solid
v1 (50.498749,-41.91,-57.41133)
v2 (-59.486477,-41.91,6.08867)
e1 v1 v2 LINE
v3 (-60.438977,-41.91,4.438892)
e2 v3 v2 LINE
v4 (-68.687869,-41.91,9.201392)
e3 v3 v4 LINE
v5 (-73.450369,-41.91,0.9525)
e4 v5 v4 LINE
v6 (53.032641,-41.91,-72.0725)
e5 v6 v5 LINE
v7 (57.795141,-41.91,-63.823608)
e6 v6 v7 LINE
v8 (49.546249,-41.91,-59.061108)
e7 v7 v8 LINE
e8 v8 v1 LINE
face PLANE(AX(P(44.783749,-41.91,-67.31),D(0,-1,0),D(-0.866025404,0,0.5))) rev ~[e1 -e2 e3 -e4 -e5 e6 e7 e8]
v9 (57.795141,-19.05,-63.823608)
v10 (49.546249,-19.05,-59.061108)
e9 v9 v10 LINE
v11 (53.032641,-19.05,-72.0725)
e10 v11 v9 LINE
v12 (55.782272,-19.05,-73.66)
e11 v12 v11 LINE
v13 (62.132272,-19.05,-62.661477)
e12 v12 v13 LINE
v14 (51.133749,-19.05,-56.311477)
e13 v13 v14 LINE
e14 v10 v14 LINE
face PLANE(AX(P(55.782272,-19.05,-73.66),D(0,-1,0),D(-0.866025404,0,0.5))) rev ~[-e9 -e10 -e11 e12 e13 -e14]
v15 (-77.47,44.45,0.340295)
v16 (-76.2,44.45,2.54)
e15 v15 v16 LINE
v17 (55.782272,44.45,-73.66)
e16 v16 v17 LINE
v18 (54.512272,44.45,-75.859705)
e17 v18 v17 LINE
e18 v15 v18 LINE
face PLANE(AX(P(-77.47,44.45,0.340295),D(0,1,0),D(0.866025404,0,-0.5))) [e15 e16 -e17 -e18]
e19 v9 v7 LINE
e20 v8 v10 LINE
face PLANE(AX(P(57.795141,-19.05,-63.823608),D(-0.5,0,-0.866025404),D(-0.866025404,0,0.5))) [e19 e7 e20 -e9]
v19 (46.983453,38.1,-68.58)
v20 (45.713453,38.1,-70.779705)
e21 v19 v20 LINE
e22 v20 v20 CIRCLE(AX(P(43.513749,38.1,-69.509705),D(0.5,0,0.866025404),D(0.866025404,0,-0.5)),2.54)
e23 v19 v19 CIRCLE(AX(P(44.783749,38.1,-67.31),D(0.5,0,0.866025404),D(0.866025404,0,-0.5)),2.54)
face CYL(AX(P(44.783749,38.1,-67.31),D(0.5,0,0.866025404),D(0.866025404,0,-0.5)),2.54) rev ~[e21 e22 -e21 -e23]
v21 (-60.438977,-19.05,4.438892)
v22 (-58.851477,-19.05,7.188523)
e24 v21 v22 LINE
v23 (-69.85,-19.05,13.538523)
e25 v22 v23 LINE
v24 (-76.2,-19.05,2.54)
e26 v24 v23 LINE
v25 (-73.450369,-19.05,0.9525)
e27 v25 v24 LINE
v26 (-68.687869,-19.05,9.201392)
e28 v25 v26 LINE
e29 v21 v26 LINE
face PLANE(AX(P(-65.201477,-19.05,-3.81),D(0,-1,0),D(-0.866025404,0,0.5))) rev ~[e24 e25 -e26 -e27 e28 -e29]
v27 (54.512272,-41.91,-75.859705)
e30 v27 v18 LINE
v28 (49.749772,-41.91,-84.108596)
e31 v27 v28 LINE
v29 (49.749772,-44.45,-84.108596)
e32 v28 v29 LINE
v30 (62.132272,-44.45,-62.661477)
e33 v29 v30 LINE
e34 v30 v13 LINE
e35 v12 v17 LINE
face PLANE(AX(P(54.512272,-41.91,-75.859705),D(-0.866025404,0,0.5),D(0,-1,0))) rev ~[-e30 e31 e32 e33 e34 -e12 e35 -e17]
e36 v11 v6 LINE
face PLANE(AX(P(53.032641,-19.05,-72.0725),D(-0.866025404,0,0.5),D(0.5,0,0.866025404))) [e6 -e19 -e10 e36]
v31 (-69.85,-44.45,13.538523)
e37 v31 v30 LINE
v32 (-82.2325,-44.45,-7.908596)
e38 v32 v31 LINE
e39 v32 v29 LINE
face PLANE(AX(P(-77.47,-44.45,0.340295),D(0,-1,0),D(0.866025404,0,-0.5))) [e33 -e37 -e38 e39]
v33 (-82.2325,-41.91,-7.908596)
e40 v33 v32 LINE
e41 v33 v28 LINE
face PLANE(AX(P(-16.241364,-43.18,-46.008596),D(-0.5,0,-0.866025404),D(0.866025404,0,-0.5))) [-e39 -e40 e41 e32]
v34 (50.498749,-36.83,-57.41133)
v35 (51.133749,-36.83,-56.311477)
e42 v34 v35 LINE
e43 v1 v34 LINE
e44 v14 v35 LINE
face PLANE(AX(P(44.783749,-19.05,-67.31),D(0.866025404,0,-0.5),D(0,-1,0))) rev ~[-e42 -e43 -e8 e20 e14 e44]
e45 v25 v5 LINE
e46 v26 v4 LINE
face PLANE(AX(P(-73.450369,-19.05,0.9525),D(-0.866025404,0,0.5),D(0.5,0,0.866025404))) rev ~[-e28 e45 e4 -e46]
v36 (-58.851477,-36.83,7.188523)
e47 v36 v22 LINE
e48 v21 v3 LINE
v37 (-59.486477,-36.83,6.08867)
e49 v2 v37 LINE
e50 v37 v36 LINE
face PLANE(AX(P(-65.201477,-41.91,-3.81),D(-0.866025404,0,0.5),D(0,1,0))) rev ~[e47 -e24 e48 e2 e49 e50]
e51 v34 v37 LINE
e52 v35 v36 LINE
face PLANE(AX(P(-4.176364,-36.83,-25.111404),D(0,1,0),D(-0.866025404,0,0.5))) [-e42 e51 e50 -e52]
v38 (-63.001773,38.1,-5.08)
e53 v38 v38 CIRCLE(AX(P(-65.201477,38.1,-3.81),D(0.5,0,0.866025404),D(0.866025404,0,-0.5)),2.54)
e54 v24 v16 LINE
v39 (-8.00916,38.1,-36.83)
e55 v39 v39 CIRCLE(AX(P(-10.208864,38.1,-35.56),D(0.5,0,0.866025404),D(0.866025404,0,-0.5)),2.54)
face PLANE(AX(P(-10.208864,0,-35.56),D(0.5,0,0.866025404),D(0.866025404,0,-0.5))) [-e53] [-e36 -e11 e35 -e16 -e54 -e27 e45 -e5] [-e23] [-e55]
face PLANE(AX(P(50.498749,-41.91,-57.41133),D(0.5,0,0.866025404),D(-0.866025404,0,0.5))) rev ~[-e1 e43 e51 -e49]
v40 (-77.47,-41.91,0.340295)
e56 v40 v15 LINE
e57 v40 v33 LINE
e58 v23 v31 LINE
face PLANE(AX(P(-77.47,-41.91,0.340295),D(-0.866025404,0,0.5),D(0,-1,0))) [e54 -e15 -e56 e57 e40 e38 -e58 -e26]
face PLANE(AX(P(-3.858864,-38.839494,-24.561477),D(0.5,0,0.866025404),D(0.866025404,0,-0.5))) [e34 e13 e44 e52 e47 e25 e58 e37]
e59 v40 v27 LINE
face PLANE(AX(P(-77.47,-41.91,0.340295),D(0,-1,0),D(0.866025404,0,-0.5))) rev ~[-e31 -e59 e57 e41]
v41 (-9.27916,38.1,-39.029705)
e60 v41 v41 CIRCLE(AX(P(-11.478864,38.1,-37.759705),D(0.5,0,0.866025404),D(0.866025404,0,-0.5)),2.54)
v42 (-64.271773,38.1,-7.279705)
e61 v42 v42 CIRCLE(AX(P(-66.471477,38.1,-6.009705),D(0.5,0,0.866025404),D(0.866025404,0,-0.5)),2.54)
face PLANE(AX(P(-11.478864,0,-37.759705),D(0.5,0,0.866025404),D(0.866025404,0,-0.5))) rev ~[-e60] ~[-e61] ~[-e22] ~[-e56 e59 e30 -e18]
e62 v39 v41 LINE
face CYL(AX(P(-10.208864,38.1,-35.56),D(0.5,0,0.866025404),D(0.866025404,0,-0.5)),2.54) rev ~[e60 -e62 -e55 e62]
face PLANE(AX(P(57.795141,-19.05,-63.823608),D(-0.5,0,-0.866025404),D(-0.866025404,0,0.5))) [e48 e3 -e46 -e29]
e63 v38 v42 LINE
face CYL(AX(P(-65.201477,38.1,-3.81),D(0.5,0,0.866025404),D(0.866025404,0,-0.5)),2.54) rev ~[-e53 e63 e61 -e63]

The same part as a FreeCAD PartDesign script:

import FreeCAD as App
import Part
import Sketcher
from FreeCAD import Vector
Q = App.Units.Quantity

doc = App.newDocument("Part")
body = doc.addObject("PartDesign::Body", "Body")

sketch1 = doc.addObject("Sketcher::SketchObject", "Sketch")
body.addObject(sketch1)
sketch1.AttachmentSupport = (doc.XY_Plane, [""])
sketch1.MapMode = "FlatFace"
sketch1.addGeometry(Part.LineSegment(Vector(-76.2, 44.45, 0), Vector(-76.2, -44.45, 0)), False)
sketch1.addGeometry(Part.LineSegment(Vector(-76.2, -44.45, 0), Vector(76.2, -44.45, 0)), False)
sketch1.addGeometry(Part.LineSegment(Vector(76.2, -44.45, 0), Vector(76.2, 44.45, 0)), False)
sketch1.addGeometry(Part.LineSegment(Vector(76.2, 44.45, 0), Vector(-76.2, 44.45, 0)), False)
sketch1.addConstraint(Sketcher.Constraint("Coincident", 0, 2, 1, 1))
sketch1.addConstraint(Sketcher.Constraint("Coincident", 1, 2, 2, 1))
sketch1.addConstraint(Sketcher.Constraint("Coincident", 2, 2, 3, 1))
sketch1.addConstraint(Sketcher.Constraint("Coincident", 3, 2, 0, 1))
sketch1.addConstraint(Sketcher.Constraint("Vertical", 0))
sketch1.addConstraint(Sketcher.Constraint("Horizontal", 1))
sketch1.addConstraint(Sketcher.Constraint("Vertical", 2))
sketch1.addConstraint(Sketcher.Constraint("Horizontal", 3))
sketch1.addConstraint(Sketcher.Constraint("Symmetric", 0, 2, 2, 2, -1, 1))
sketch1.addConstraint(Sketcher.Constraint("DistanceX", 1, 1, 1, 2, Q("6 in")))
sketch1.addConstraint(Sketcher.Constraint("DistanceY", 0, 2, 0, 1, Q("3.5 in")))
pad1 = doc.addObject("PartDesign::Pad", "Pad")
body.addObject(pad1)
pad1.Profile = sketch1
pad1.Length = Q("0.1 in")

sketch2 = doc.addObject("Sketcher::SketchObject", "Sketch001")
body.addObject(sketch2)
sketch2.AttachmentSupport = (doc.XY_Plane, [""])
sketch2.MapMode = "FlatFace"
sketch2.AttachmentOffset = App.Placement(Vector(0, 0, 0.1 * 25.4), App.Rotation())
sketch2.addGeometry(Part.LineSegment(Vector(63.5, -41.91, 0), Vector(-63.5, -41.91, 0)), False)
sketch2.addGeometry(Part.LineSegment(Vector(-63.5, -41.91, 0), Vector(-63.5, -19.05, 0)), False)
sketch2.addGeometry(Part.LineSegment(Vector(-63.5, -19.05, 0), Vector(-76.2, -19.05, 0)), False)
sketch2.addGeometry(Part.LineSegment(Vector(-76.2, -19.05, 0), Vector(-76.2, -44.45, 0)), False)
sketch2.addGeometry(Part.LineSegment(Vector(-76.2, -44.45, 0), Vector(76.2, -44.45, 0)), False)
sketch2.addGeometry(Part.LineSegment(Vector(76.2, -44.45, 0), Vector(76.2, -19.05, 0)), False)
sketch2.addGeometry(Part.LineSegment(Vector(76.2, -19.05, 0), Vector(63.5, -19.05, 0)), False)
sketch2.addGeometry(Part.LineSegment(Vector(63.5, -19.05, 0), Vector(63.5, -41.91, 0)), False)
sketch2.addConstraint(Sketcher.Constraint("Coincident", 0, 2, 1, 1))
sketch2.addConstraint(Sketcher.Constraint("Coincident", 1, 2, 2, 1))
sketch2.addConstraint(Sketcher.Constraint("Coincident", 2, 2, 3, 1))
sketch2.addConstraint(Sketcher.Constraint("Coincident", 3, 2, 4, 1))
sketch2.addConstraint(Sketcher.Constraint("Coincident", 4, 2, 5, 1))
sketch2.addConstraint(Sketcher.Constraint("Coincident", 5, 2, 6, 1))
sketch2.addConstraint(Sketcher.Constraint("Coincident", 6, 2, 7, 1))
sketch2.addConstraint(Sketcher.Constraint("Coincident", 7, 2, 0, 1))
sketch2.addConstraint(Sketcher.Constraint("Horizontal", 0))
sketch2.addConstraint(Sketcher.Constraint("Vertical", 1))
sketch2.addConstraint(Sketcher.Constraint("Horizontal", 2))
sketch2.addConstraint(Sketcher.Constraint("Vertical", 3))
sketch2.addConstraint(Sketcher.Constraint("Horizontal", 4))
sketch2.addConstraint(Sketcher.Constraint("Vertical", 5))
sketch2.addConstraint(Sketcher.Constraint("Horizontal", 6))
sketch2.addConstraint(Sketcher.Constraint("Vertical", 7))
sketch2.addConstraint(Sketcher.Constraint("Symmetric", 2, 2, 5, 2, -2))
sketch2.addConstraint(Sketcher.Constraint("Equal", 2, 6))
sketch2.addConstraint(Sketcher.Constraint("DistanceX", 0, 2, 0, 1, Q("5 in")))
sketch2.addConstraint(Sketcher.Constraint("DistanceX", 4, 1, 4, 2, Q("6 in")))
sketch2.addConstraint(Sketcher.Constraint("DistanceY", 3, 2, 3, 1, Q("1 in")))
sketch2.addConstraint(Sketcher.Constraint("DistanceY", 1, 1, 1, 2, Q("0.9 in")))
sketch2.addConstraint(Sketcher.Constraint("DistanceY", 0, 2, -1, 1, Q("1.65 in")))
pad2 = doc.addObject("PartDesign::Pad", "Pad001")
body.addObject(pad2)
pad2.Profile = sketch2
pad2.Length = Q("0.5 in")

sketch3 = doc.addObject("Sketcher::SketchObject", "Sketch002")
body.addObject(sketch3)
sketch3.AttachmentSupport = (doc.XZ_Plane, [""])
sketch3.MapMode = "FlatFace"
sketch3.AttachmentOffset = App.Placement(Vector(0, 0, 1.65 * 25.4), App.Rotation())
sketch3.addGeometry(Part.LineSegment(Vector(63.5, 15.24, 0), Vector(63.5, 13.97, 0)), False)
sketch3.addGeometry(Part.LineSegment(Vector(63.5, 13.97, 0), Vector(-63.5, 13.97, 0)), False)
sketch3.addGeometry(Part.LineSegment(Vector(-63.5, 13.97, 0), Vector(-63.5, 15.24, 0)), False)
sketch3.addGeometry(Part.LineSegment(Vector(-63.5, 15.24, 0), Vector(63.5, 15.24, 0)), False)
sketch3.addConstraint(Sketcher.Constraint("Coincident", 0, 2, 1, 1))
sketch3.addConstraint(Sketcher.Constraint("Coincident", 1, 2, 2, 1))
sketch3.addConstraint(Sketcher.Constraint("Coincident", 2, 2, 3, 1))
sketch3.addConstraint(Sketcher.Constraint("Coincident", 3, 2, 0, 1))
sketch3.addConstraint(Sketcher.Constraint("Vertical", 0))
sketch3.addConstraint(Sketcher.Constraint("Horizontal", 1))
sketch3.addConstraint(Sketcher.Constraint("Vertical", 2))
sketch3.addConstraint(Sketcher.Constraint("Horizontal", 3))
sketch3.addConstraint(Sketcher.Constraint("DistanceX", 1, 2, 1, 1, Q("5 in")))
sketch3.addConstraint(Sketcher.Constraint("DistanceY", 0, 2, 0, 1, Q("0.05 in")))
sketch3.addConstraint(Sketcher.Constraint("DistanceX", -1, 1, 0, 2, Q("2.5 in")))
sketch3.addConstraint(Sketcher.Constraint("DistanceY", -1, 1, 2, 2, Q("0.6 in")))
pad3 = doc.addObject("PartDesign::Pad", "Pad002")
body.addObject(pad3)
pad3.Profile = sketch3
pad3.Length = Q("0.2 in")
pad3.Reversed = True

sketch4 = doc.addObject("Sketcher::SketchObject", "Sketch003")
body.addObject(sketch4)
sketch4.AttachmentSupport = (doc.XZ_Plane, [""])
sketch4.MapMode = "FlatFace"
sketch4.AttachmentOffset = App.Placement(Vector(0, 0, 0.75 * 25.4), App.Rotation())
sketch4.addGeometry(Part.LineSegment(Vector(73.025, 12.065, 0), Vector(73.025, 2.54, 0)), False)
sketch4.addGeometry(Part.LineSegment(Vector(73.025, 2.54, 0), Vector(-73.025, 2.54, 0)), False)
sketch4.addGeometry(Part.LineSegment(Vector(-73.025, 2.54, 0), Vector(-73.025, 12.065, 0)), False)
sketch4.addGeometry(Part.LineSegment(Vector(-73.025, 12.065, 0), Vector(73.025, 12.065, 0)), False)
sketch4.addConstraint(Sketcher.Constraint("Coincident", 0, 2, 1, 1))
sketch4.addConstraint(Sketcher.Constraint("Coincident", 1, 2, 2, 1))
sketch4.addConstraint(Sketcher.Constraint("Coincident", 2, 2, 3, 1))
sketch4.addConstraint(Sketcher.Constraint("Coincident", 3, 2, 0, 1))
sketch4.addConstraint(Sketcher.Constraint("Vertical", 0))
sketch4.addConstraint(Sketcher.Constraint("Horizontal", 1))
sketch4.addConstraint(Sketcher.Constraint("Vertical", 2))
sketch4.addConstraint(Sketcher.Constraint("Horizontal", 3))
sketch4.addConstraint(Sketcher.Constraint("DistanceX", 1, 2, 1, 1, Q("5.75 in")))
sketch4.addConstraint(Sketcher.Constraint("DistanceY", -1, 1, 0, 2, Q("0.1 in")))
sketch4.addConstraint(Sketcher.Constraint("DistanceY", 0, 2, 0, 1, Q("0.375 in")))
sketch4.addConstraint(Sketcher.Constraint("DistanceX", -1, 1, 0, 2, Q("2.875 in")))
pocket1 = doc.addObject("PartDesign::Pocket", "Pocket")
body.addObject(pocket1)
pocket1.Profile = sketch4
pocket1.Length = Q("0.9 in")
pocket1.Reversed = True

sketch5 = doc.addObject("Sketcher::SketchObject", "Sketch004")
body.addObject(sketch5)
sketch5.AttachmentSupport = (doc.XY_Plane, [""])
sketch5.MapMode = "FlatFace"
sketch5.AttachmentOffset = App.Placement(Vector(0, 0, 0.1 * 25.4), App.Rotation())
sketch5.addGeometry(Part.Circle(Vector(0, 38.1, 0), Vector(0, 0, 1), 2.54), False)
sketch5.addGeometry(Part.Circle(Vector(-63.5, 38.1, 0), Vector(0, 0, 1), 2.54), False)
sketch5.addGeometry(Part.Circle(Vector(63.5, 38.1, 0), Vector(0, 0, 1), 2.54), False)
sketch5.addConstraint(Sketcher.Constraint("Equal", 0, 1))
sketch5.addConstraint(Sketcher.Constraint("Equal", 1, 2))
sketch5.addConstraint(Sketcher.Constraint("Symmetric", 1, 3, 2, 3, -2))
sketch5.addConstraint(Sketcher.Constraint("PointOnObject", 0, 3, -2))
sketch5.addConstraint(Sketcher.Constraint("Horizontal", 0, 3, 1, 3))
sketch5.addConstraint(Sketcher.Constraint("Diameter", 0, Q("0.2 in")))
sketch5.addConstraint(Sketcher.Constraint("DistanceX", 1, 3, 2, 3, Q("5 in")))
sketch5.addConstraint(Sketcher.Constraint("DistanceY", -1, 1, 0, 3, Q("1.5 in")))
pocket2 = doc.addObject("PartDesign::Pocket", "Pocket001")
body.addObject(pocket2)
pocket2.Profile = sketch5
pocket2.Type = "ThroughAll"

sketch6 = doc.addObject("Sketcher::SketchObject", "Sketch005")
body.addObject(sketch6)
sketch6.AttachmentSupport = (doc.XY_Plane, [""])
sketch6.MapMode = "FlatFace"
sketch6.addGeometry(Part.LineSegment(Vector(-76.2, -44.45, 0), Vector(-76.2, -41.91, 0)), False)
sketch6.addGeometry(Part.LineSegment(Vector(-76.2, -41.91, 0), Vector(76.2, -41.91, 0)), False)
sketch6.addGeometry(Part.LineSegment(Vector(76.2, -41.91, 0), Vector(76.2, -44.45, 0)), False)
sketch6.addGeometry(Part.LineSegment(Vector(76.2, -44.45, 0), Vector(-76.2, -44.45, 0)), False)
sketch6.addConstraint(Sketcher.Constraint("Coincident", 0, 2, 1, 1))
sketch6.addConstraint(Sketcher.Constraint("Coincident", 1, 2, 2, 1))
sketch6.addConstraint(Sketcher.Constraint("Coincident", 2, 2, 3, 1))
sketch6.addConstraint(Sketcher.Constraint("Coincident", 3, 2, 0, 1))
sketch6.addConstraint(Sketcher.Constraint("Vertical", 0))
sketch6.addConstraint(Sketcher.Constraint("Horizontal", 1))
sketch6.addConstraint(Sketcher.Constraint("Vertical", 2))
sketch6.addConstraint(Sketcher.Constraint("Horizontal", 3))
sketch6.addConstraint(Sketcher.Constraint("DistanceX", 1, 1, 1, 2, Q("6 in")))
sketch6.addConstraint(Sketcher.Constraint("DistanceY", 0, 1, 0, 2, Q("0.1 in")))
sketch6.addConstraint(Sketcher.Constraint("DistanceX", 0, 2, -1, 1, Q("3 in")))
sketch6.addConstraint(Sketcher.Constraint("DistanceY", 0, 2, -1, 1, Q("1.65 in")))
pad4 = doc.addObject("PartDesign::Pad", "Pad003")
body.addObject(pad4)
pad4.Profile = sketch6
pad4.Length = Q("0.375 in")
pad4.Reversed = True
body2 = doc.addObject("PartDesign::Body", "Body001")
doc.recompute()

body.Placement = App.Placement(Vector(-11.478864, 0, -37.759705), App.Rotation(Vector(0, 1, 0), 30))
boolean = doc.addObject("PartDesign::Boolean", "Boolean")
body2.addObject(boolean)
boolean.Type = "Fuse"
boolean.addObjects([body])

doc.recompute()
